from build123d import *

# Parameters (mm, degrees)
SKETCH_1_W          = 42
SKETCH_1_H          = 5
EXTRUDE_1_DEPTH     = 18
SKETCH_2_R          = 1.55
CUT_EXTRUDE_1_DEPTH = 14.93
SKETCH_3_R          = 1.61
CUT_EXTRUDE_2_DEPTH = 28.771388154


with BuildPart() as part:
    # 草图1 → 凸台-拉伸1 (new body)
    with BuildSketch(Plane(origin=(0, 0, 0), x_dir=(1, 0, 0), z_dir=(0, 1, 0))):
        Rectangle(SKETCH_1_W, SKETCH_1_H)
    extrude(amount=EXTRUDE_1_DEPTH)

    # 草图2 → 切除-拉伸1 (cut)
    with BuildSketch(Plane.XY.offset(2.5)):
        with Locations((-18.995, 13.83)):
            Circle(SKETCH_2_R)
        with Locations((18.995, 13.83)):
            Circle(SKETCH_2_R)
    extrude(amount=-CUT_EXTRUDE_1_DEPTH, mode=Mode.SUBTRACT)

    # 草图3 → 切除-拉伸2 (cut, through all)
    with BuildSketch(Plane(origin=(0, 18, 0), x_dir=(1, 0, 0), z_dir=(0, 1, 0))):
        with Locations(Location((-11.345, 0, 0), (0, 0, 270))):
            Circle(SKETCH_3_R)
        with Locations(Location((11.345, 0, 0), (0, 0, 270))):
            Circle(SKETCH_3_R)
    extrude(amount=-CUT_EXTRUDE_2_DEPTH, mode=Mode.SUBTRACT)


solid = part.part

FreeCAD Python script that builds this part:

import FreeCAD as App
import Part
import Sketcher

doc = App.newDocument("Part")
params = doc.addObject("Spreadsheet::Sheet", "Params")
for row, (alias, value) in enumerate([
    ("sketch1_width", "42 mm"),
    ("sketch1_height", "5 mm"),
    ("pad1_length", "18 mm"),
    ("sketch2_diameter", "3.1 mm"),
    ("pocket1_length", "14.93 mm"),
    ("sketch3_diameter", "3.22 mm"),
], start=1):
    params.set(f"A{row}", alias)
    params.set(f"B{row}", "=" + value)
    params.setAlias(f"B{row}", alias)

body = doc.addObject("PartDesign::Body", "Body")

sketch1 = body.newObject("Sketcher::SketchObject", "Sketch")
sketch1.AttachmentSupport = (doc.getObject("XZ_Plane"), [""])
sketch1.MapMode = "FlatFace"
sketch1.addGeometry([
    Part.LineSegment(App.Vector(-21, -2, 0), App.Vector(-21, 2, 0)),
    Part.LineSegment(App.Vector(-21, 2, 0), App.Vector(21, 2, 0)),
    Part.LineSegment(App.Vector(21, 2, 0), App.Vector(21, -2, 0)),
    Part.LineSegment(App.Vector(21, -2, 0), App.Vector(-21, -2, 0)),
], False)
sketch1.addConstraint([
    Sketcher.Constraint("Coincident", 0, 2, 1, 1),
    Sketcher.Constraint("Coincident", 1, 2, 2, 1),
    Sketcher.Constraint("Coincident", 2, 2, 3, 1),
    Sketcher.Constraint("Coincident", 3, 2, 0, 1),
    Sketcher.Constraint("Vertical", 0),
    Sketcher.Constraint("Horizontal", 1),
    Sketcher.Constraint("Vertical", 2),
    Sketcher.Constraint("Horizontal", 3),
    Sketcher.Constraint("Symmetric", 0, 2, 2, 2, -1, 1),
    Sketcher.Constraint("DistanceX", 1, 1, 1, 2, 42.0),
    Sketcher.Constraint("DistanceY", 0, 1, 0, 2, 5.0),
])
sketch1.setExpression("Constraints[9]", "Params.sketch1_width")
sketch1.setExpression("Constraints[10]", "Params.sketch1_height")
pad1 = body.newObject("PartDesign::Pad", "Pad")
pad1.Profile = sketch1
pad1.setExpression("Length", "Params.pad1_length")
pad1.Reversed = True

sketch2 = body.newObject("Sketcher::SketchObject", "Sketch001")
sketch2.AttachmentSupport = (doc.getObject("XY_Plane"), [""])
sketch2.MapMode = "FlatFace"
sketch2.AttachmentOffset = App.Placement(App.Vector(0, 0, 2.5), App.Rotation())
sketch2.addGeometry([
    Part.Circle(App.Vector(-19, 13.8, 0), App.Vector(0, 0, 1), 1.6),
    Part.Circle(App.Vector(19, 13.8, 0), App.Vector(0, 0, 1), 1.6),
], False)
sketch2.addConstraint([
    Sketcher.Constraint("Equal", 0, 1),
    Sketcher.Constraint("Symmetric", 0, 3, 1, 3, -2),
    Sketcher.Constraint("Diameter", 0, 3.1),
    Sketcher.Constraint("DistanceY", -1, 1, 0, 3, 13.83),
    Sketcher.Constraint("DistanceX", 0, 3, 1, 3, 37.99),
])
sketch2.setExpression("Constraints[2]", "Params.sketch2_diameter")
pocket1 = body.newObject("PartDesign::Pocket", "Pocket")
pocket1.Profile = sketch2
pocket1.setExpression("Length", "Params.pocket1_length")

sketch3 = body.newObject("Sketcher::SketchObject", "Sketch002")
sketch3.AttachmentSupport = (doc.getObject("XZ_Plane"), [""])
sketch3.MapMode = "FlatFace"
sketch3.AttachmentOffset = App.Placement(App.Vector(0, 0, -18), App.Rotation())
sketch3.addGeometry([
    Part.Circle(App.Vector(-11.3, 0, 0), App.Vector(0, 0, 1), 1.6),
    Part.Circle(App.Vector(11.3, 0, 0), App.Vector(0, 0, 1), 1.6),
], False)
sketch3.addConstraint([
    Sketcher.Constraint("Equal", 0, 1),
    Sketcher.Constraint("Symmetric", 0, 3, 1, 3, -1, 1),
    Sketcher.Constraint("PointOnObject", 0, 3, -1),
    Sketcher.Constraint("Diameter", 0, 3.22),
    Sketcher.Constraint("DistanceX", 0, 3, 1, 3, 22.69),
])
sketch3.setExpression("Constraints[3]", "Params.sketch3_diameter")
pocket2 = body.newObject("PartDesign::Pocket", "Pocket001")
pocket2.Profile = sketch3
pocket2.Type = "ThroughAll"
pocket2.Reversed = True

doc.recompute()
